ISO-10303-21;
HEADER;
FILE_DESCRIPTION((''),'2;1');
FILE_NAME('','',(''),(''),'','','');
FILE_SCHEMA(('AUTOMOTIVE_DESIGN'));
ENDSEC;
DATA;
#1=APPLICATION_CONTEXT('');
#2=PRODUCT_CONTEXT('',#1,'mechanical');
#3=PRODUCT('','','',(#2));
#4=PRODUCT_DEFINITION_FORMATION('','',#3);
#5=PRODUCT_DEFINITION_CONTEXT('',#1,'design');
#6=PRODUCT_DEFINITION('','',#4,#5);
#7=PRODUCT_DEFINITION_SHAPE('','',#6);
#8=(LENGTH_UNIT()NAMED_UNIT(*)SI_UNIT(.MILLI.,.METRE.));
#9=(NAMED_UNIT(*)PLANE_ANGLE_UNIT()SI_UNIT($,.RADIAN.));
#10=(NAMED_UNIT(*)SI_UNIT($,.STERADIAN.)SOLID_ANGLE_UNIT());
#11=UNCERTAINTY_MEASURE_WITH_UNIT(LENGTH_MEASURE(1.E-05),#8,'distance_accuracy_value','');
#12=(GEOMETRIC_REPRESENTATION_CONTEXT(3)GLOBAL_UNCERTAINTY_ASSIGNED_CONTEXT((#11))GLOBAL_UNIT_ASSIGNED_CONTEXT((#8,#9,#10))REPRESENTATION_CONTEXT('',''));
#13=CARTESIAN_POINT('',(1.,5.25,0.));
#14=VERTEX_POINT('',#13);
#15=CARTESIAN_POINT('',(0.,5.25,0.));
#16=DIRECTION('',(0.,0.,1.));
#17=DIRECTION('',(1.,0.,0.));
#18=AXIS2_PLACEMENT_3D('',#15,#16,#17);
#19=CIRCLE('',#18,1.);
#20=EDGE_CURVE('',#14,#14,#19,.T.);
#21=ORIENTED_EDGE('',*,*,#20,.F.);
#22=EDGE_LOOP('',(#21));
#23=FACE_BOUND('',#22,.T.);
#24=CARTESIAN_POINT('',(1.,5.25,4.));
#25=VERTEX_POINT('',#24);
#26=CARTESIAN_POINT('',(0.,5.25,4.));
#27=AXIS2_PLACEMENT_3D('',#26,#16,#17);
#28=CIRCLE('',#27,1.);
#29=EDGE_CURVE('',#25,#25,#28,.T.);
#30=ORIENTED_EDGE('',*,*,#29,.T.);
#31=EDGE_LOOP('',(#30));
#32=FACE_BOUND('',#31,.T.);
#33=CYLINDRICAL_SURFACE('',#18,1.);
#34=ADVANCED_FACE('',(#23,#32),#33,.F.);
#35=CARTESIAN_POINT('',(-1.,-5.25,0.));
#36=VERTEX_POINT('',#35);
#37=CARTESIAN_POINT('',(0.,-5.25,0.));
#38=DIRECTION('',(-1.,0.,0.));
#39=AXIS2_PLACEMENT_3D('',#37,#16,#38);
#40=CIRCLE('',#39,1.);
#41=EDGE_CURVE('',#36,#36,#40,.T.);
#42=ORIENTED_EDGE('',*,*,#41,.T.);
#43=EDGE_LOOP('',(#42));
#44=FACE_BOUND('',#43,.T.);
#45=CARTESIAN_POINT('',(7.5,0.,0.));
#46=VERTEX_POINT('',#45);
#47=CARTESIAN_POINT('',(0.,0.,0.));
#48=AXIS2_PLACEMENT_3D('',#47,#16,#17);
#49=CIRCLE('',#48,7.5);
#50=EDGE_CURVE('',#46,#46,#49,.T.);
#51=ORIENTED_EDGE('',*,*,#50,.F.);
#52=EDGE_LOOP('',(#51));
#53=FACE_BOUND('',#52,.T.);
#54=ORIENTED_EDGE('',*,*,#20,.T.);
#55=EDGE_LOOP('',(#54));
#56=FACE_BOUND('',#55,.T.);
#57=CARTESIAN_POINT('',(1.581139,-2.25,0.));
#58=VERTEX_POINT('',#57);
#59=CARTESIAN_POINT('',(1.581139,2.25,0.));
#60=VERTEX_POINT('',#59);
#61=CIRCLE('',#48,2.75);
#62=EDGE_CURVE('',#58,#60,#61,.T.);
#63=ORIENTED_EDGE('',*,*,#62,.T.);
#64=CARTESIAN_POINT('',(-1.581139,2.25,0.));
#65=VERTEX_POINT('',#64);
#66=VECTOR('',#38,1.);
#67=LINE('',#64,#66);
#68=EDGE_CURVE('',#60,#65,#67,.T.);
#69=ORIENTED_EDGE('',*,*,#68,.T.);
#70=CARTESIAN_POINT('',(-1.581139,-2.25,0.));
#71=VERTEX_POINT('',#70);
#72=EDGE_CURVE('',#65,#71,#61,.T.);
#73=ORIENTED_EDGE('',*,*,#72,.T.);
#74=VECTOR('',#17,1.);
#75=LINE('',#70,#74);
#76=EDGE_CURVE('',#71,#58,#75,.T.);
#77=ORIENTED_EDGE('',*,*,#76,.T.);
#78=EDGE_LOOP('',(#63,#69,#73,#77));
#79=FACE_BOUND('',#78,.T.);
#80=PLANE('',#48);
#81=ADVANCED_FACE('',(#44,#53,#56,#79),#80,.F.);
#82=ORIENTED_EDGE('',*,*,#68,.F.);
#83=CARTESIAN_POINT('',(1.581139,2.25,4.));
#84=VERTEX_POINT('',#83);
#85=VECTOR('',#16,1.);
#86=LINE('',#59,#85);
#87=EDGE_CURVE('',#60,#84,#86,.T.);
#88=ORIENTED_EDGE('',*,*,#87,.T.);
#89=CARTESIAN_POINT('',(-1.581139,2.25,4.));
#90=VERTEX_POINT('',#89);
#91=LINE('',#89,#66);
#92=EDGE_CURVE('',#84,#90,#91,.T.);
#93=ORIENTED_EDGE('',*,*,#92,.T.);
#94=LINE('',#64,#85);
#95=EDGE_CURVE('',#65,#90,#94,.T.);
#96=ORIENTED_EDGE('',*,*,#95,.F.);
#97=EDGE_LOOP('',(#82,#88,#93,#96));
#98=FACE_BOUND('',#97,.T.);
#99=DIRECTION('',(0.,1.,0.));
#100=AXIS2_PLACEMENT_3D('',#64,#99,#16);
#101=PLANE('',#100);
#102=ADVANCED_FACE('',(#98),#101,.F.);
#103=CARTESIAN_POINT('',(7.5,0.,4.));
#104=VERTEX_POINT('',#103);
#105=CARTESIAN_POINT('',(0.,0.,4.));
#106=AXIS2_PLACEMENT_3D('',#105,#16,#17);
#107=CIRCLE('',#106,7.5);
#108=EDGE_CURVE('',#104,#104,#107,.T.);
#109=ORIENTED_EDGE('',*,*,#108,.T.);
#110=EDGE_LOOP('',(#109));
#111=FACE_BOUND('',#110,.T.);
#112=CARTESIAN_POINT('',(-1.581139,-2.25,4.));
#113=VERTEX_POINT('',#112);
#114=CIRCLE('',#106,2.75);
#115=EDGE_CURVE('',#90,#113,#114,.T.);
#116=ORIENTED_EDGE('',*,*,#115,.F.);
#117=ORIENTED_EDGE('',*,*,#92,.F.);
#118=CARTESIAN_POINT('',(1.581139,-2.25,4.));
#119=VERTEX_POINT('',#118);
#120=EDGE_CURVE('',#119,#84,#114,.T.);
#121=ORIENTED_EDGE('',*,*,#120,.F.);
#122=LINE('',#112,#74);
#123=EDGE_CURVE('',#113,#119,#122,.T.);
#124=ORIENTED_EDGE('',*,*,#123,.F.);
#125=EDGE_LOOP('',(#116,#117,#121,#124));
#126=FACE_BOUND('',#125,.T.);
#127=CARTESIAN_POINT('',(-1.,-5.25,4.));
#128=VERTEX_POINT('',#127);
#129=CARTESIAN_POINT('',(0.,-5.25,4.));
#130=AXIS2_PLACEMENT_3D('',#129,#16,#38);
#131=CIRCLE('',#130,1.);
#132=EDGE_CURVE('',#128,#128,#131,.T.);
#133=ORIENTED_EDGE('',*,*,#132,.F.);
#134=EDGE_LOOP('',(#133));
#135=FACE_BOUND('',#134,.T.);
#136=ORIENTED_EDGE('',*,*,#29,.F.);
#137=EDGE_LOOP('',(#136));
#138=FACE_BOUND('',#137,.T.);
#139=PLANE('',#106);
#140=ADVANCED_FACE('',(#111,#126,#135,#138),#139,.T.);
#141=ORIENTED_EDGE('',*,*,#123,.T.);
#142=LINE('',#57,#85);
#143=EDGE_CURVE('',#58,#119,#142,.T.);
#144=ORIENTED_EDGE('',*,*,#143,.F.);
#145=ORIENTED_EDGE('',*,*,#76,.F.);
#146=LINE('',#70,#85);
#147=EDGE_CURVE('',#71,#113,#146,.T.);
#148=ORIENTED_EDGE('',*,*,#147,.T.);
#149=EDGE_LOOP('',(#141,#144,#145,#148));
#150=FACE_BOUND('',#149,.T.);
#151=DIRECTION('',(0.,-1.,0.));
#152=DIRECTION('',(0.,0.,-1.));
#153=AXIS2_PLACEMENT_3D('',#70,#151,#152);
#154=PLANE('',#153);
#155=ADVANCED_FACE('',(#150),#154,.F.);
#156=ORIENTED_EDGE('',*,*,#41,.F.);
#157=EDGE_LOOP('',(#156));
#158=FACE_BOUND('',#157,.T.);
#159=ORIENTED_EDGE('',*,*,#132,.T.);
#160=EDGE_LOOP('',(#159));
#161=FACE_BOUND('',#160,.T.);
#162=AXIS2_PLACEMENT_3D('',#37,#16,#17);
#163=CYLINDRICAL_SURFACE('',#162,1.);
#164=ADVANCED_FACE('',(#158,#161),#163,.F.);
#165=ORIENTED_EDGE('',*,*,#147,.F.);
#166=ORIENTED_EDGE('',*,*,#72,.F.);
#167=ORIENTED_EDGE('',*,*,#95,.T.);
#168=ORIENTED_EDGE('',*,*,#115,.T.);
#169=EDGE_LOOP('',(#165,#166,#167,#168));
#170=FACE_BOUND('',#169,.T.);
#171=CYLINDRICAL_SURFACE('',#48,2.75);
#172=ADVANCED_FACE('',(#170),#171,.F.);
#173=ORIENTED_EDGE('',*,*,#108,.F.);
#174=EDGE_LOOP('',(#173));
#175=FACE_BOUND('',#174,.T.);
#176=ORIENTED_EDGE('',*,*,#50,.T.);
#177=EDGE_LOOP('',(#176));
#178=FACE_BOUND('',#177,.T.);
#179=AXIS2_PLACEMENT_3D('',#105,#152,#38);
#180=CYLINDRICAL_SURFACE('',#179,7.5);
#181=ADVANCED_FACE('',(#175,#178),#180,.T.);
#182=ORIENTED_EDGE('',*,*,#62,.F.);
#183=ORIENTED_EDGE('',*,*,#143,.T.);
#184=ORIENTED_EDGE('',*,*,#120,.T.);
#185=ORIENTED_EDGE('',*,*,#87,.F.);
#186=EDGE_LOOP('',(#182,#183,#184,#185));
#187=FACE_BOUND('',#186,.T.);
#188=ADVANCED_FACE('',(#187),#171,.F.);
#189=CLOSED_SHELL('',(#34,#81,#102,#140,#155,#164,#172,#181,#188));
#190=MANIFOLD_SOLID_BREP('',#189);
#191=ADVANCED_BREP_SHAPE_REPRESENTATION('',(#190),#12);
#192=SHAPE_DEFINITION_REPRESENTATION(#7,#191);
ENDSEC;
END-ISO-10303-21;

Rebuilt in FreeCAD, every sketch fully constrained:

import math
import FreeCAD as App
import Part
import Sketcher

V = App.Vector

doc = App.newDocument("Part")
body = doc.addObject("PartDesign::Body", "Body")

sketch1 = body.newObject("Sketcher::SketchObject", "Sketch")
sketch1.AttachmentSupport = (doc.getObject("XY_Plane"), [""])
sketch1.MapMode = "FlatFace"
sketch1.addGeometry(Part.Circle(V(0, 0, 0), V(0, 0, 1), 8), False)
sketch1.addConstraint(Sketcher.Constraint("Coincident", 0, 3, -1, 1))
sketch1.addConstraint(Sketcher.Constraint("Diameter", 0, 15.0))
pad1 = body.newObject("PartDesign::Pad", "Pad")
pad1.Profile = sketch1
pad1.Length = 4

sketch2 = body.newObject("Sketcher::SketchObject", "Sketch001")
sketch2.AttachmentSupport = (doc.getObject("XY_Plane"), [""])
sketch2.MapMode = "FlatFace"
sketch2.AttachmentOffset = App.Placement(V(0, 0, 4), App.Rotation())
sketch2.addGeometry(Part.Circle(V(0, 5.2, 0), V(0, 0, 1), 1), False)
sketch2.addGeometry(Part.Circle(V(0, -5.2, 0), V(0, 0, 1), 1), False)
sketch2.addGeometry(Part.LineSegment(V(1.6, 2.2, 0), V(-1.6, 2.2, 0)), False)
sketch2.addGeometry(Part.ArcOfCircle(Part.Circle(V(0, 0, 0), V(0, 0, 1), 2.8), math.radians(125), math.radians(235)), False)
sketch2.addGeometry(Part.LineSegment(V(-1.6, -2.2, 0), V(1.6, -2.2, 0)), False)
sketch2.addGeometry(Part.ArcOfCircle(Part.Circle(V(0, 0, 0), V(0, 0, 1), 2.8), math.radians(-55), math.radians(55)), False)
sketch2.addConstraint(Sketcher.Constraint("Coincident", 2, 2, 3, 1))
sketch2.addConstraint(Sketcher.Constraint("Coincident", 3, 2, 4, 1))
sketch2.addConstraint(Sketcher.Constraint("Coincident", 4, 2, 5, 1))
sketch2.addConstraint(Sketcher.Constraint("Coincident", 5, 2, 2, 1))
sketch2.addConstraint(Sketcher.Constraint("Horizontal", 2))
sketch2.addConstraint(Sketcher.Constraint("Horizontal", 4))
sketch2.addConstraint(Sketcher.Constraint("Coincident", 3, 3, -1, 1))
sketch2.addConstraint(Sketcher.Constraint("Coincident", 5, 3, -1, 1))
sketch2.addConstraint(Sketcher.Constraint("Equal", 0, 1))
sketch2.addConstraint(Sketcher.Constraint("Equal", 3, 5))
sketch2.addConstraint(Sketcher.Constraint("Symmetric", 0, 3, 1, 3, -1, 1))
sketch2.addConstraint(Sketcher.Constraint("PointOnObject", 0, 3, -2))
sketch2.addConstraint(Sketcher.Constraint("Vertical", 2, 2, 3, 2))
sketch2.addConstraint(Sketcher.Constraint("Diameter", 0, 2.0))
sketch2.addConstraint(Sketcher.Constraint("Radius", 3, 2.75))
sketch2.addConstraint(Sketcher.Constraint("DistanceY", 2, 2, 0, 3, 3.0))
sketch2.addConstraint(Sketcher.Constraint("DistanceY", 1, 3, 0, 3, 10.5))
pocket1 = body.newObject("PartDesign::Pocket", "Pocket")
pocket1.Profile = sketch2
pocket1.Length = 4

doc.recompute()
